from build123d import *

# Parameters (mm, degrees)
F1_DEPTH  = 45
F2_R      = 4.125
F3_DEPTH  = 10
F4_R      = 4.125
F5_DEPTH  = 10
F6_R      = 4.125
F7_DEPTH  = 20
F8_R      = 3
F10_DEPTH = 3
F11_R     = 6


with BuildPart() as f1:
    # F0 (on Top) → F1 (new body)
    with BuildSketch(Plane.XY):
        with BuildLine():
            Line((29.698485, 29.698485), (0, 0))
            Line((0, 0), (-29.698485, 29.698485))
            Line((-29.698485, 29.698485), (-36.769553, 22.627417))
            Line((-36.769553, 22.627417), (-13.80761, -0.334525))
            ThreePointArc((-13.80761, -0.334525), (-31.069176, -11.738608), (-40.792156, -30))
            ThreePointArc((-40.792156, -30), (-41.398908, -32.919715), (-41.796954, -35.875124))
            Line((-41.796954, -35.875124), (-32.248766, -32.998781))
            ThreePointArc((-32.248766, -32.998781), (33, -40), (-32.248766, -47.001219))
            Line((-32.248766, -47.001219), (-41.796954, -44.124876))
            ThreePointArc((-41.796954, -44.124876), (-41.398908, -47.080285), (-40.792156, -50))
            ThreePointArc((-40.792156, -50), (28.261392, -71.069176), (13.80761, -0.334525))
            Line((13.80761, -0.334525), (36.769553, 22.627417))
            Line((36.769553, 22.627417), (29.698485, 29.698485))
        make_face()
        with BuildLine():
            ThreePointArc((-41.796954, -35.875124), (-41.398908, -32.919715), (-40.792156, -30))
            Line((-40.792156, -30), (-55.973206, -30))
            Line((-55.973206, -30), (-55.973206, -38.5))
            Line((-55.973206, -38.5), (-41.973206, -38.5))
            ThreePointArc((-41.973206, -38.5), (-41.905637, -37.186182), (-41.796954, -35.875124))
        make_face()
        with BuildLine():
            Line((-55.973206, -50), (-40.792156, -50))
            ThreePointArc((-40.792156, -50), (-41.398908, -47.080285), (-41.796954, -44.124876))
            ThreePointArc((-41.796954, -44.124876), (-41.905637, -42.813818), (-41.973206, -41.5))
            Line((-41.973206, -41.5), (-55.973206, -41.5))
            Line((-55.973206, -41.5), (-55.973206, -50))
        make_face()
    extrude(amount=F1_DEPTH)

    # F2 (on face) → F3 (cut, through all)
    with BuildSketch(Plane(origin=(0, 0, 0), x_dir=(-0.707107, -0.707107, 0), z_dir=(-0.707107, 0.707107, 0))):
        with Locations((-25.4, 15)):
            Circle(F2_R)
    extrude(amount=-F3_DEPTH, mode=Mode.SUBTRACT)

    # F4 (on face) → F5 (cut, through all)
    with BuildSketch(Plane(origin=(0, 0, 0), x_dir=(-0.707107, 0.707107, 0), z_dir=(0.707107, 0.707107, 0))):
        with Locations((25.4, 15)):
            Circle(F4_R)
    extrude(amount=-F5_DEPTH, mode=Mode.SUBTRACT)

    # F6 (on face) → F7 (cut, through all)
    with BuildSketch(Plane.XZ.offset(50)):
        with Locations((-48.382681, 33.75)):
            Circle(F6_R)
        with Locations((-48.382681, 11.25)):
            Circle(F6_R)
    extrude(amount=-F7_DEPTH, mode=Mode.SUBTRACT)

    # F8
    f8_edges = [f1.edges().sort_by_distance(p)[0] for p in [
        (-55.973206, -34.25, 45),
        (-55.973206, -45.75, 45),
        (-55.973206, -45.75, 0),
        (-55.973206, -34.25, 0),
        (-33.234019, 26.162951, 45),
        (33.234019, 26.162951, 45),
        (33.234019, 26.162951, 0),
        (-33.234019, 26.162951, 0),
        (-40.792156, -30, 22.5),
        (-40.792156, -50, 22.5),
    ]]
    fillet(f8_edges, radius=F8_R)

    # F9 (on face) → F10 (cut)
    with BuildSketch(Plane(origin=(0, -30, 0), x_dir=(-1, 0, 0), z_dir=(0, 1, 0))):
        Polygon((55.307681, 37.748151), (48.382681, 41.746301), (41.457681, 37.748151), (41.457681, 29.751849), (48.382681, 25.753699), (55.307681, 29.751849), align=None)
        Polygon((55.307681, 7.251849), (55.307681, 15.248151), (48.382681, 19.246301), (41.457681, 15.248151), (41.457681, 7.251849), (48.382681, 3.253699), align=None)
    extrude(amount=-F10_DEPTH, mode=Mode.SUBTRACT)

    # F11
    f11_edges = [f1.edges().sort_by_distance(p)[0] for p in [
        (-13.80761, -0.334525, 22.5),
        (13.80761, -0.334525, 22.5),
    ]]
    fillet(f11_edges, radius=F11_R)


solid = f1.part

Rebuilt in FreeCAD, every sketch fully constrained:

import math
import FreeCAD as App
import Part
import Sketcher
Q = App.Units.Quantity


def edges_at(feature, points):
    """Names of the edges that pass closest to the given points."""
    edges = feature.Shape.Edges
    near = lambda p: min(range(len(edges)), key=lambda i: edges[i].distToShape(Part.Vertex(*p))[0])
    return sorted({f"Edge{near(p) + 1}" for p in points})


def add_polygon(sketch, points):
    """Adds a closed chain of lines whose ends are joined by coincident constraints."""
    first, n = sketch.GeometryCount, len(points)
    for a, b in zip(points, points[1:] + points[:1]):
        sketch.addGeometry(Part.LineSegment(App.Vector(*a, 0), App.Vector(*b, 0)), False)
    for i in range(n):
        sketch.addConstraint(Sketcher.Constraint("Coincident", first + i, 2, first + (i + 1) % n, 1))

doc = App.newDocument("Part")
params = doc.addObject("Spreadsheet::Sheet", "Params")
for row, (alias, value) in enumerate([
    ("sketch1_radius", "42.000002 mm"),
    ("sketch1_radius2", "33 mm"),
    ("sketch1_width", "14 mm"),
    ("sketch1_length", "42 mm"),
    ("sketch1_length2", "10 mm"),
    ("pad1_length", "45 mm"),
    ("sketch2_diameter", "8.25 mm"),
    ("sketch3_diameter", "8.25 mm"),
    ("sketch4_diameter", "8.25 mm"),
    ("fillet_radius", "3 mm"),
    ("pocket4_length", "3 mm"),
    ("fillet2_radius", "6 mm"),
], start=1):
    params.set(f"A{row}", alias)
    params.set(f"B{row}", "=" + value)
    params.setAlias(f"B{row}", alias)

body = doc.addObject("PartDesign::Body", "Body")

# Sketch on XY plane
sketch1 = doc.addObject("Sketcher::SketchObject", "Sketch")
body.addObject(sketch1)
sketch1.AttachmentSupport = (doc.XY_Plane, [""])
sketch1.MapMode = "FlatFace"
sketch1.addGeometry([
    Part.LineSegment(App.Vector(29.7, 29.7, 0), App.Vector(0, 0, 0)),  # 0
    Part.LineSegment(App.Vector(0, 0, 0), App.Vector(-29.7, 29.7, 0)),  # 1
    Part.LineSegment(App.Vector(-29.7, 29.7, 0), App.Vector(-36.8, 22.6, 0)),  # 2
    Part.LineSegment(App.Vector(-36.8, 22.6, 0), App.Vector(-13.8, -0.3, 0)),  # 3
    Part.ArcOfCircle(Part.Circle(App.Vector(0, -40, 0), App.Vector(0, 0, 1), 42), math.radians(109), math.radians(166)),  # 4
    Part.LineSegment(App.Vector(-40.8, -30, 0), App.Vector(-56, -30, 0)),  # 5
    Part.LineSegment(App.Vector(-56, -30, 0), App.Vector(-56, -38.5, 0)),  # 6
    Part.LineSegment(App.Vector(-56, -38.5, 0), App.Vector(-42, -38.5, 0)),  # 7
    Part.ArcOfCircle(Part.Circle(App.Vector(0, -40, 0), App.Vector(0, 0, 1), 42), math.radians(174.36), math.radians(177.95)),  # 8
    Part.LineSegment(App.Vector(-41.8, -35.9, 0), App.Vector(-32.2, -33, 0)),  # 9
    Part.ArcOfCircle(Part.Circle(App.Vector(0, -40, 0), App.Vector(0, 0, 1), 33), math.radians(-168), math.radians(168)),  # 10
    Part.LineSegment(App.Vector(-32.2, -47, 0), App.Vector(-41.8, -44.1, 0)),  # 11
    Part.ArcOfCircle(Part.Circle(App.Vector(0, -40, 0), App.Vector(0, 0, 1), 42), math.radians(-177.95), math.radians(-174.36)),  # 12
    Part.LineSegment(App.Vector(-42, -41.5, 0), App.Vector(-56, -41.5, 0)),  # 13
    Part.LineSegment(App.Vector(-56, -41.5, 0), App.Vector(-56, -50, 0)),  # 14
    Part.LineSegment(App.Vector(-56, -50, 0), App.Vector(-40.8, -50, 0)),  # 15
    Part.ArcOfCircle(Part.Circle(App.Vector(0, -40, 0), App.Vector(0, 0, 1), 42), math.radians(-166), math.radians(71)),  # 16
    Part.LineSegment(App.Vector(13.8, -0.3, 0), App.Vector(36.8, 22.6, 0)),  # 17
    Part.LineSegment(App.Vector(36.8, 22.6, 0), App.Vector(29.7, 29.7, 0)),  # 18
], False)
sketch1.addConstraint([
    Sketcher.Constraint("Coincident", 0, 2, 1, 1),
    Sketcher.Constraint("Coincident", 1, 2, 2, 1),
    Sketcher.Constraint("Coincident", 2, 2, 3, 1),
    Sketcher.Constraint("Coincident", 3, 2, 4, 1),
    Sketcher.Constraint("Coincident", 4, 2, 5, 1),
    Sketcher.Constraint("Coincident", 5, 2, 6, 1),
    Sketcher.Constraint("Coincident", 6, 2, 7, 1),
    Sketcher.Constraint("Coincident", 7, 2, 8, 2),
    Sketcher.Constraint("Coincident", 8, 1, 9, 1),
    Sketcher.Constraint("Coincident", 9, 2, 10, 2),
    Sketcher.Constraint("Coincident", 10, 1, 11, 1),
    Sketcher.Constraint("Coincident", 11, 2, 12, 2),
    Sketcher.Constraint("Coincident", 12, 1, 13, 1),
    Sketcher.Constraint("Coincident", 13, 2, 14, 1),
    Sketcher.Constraint("Coincident", 14, 2, 15, 1),
    Sketcher.Constraint("Coincident", 15, 2, 16, 1),
    Sketcher.Constraint("Coincident", 16, 2, 17, 1),
    Sketcher.Constraint("Coincident", 17, 2, 18, 1),
    Sketcher.Constraint("Coincident", 18, 2, 0, 1),
    Sketcher.Constraint("Horizontal", 5),
    Sketcher.Constraint("Vertical", 6),
    Sketcher.Constraint("Horizontal", 7),
    Sketcher.Constraint("Horizontal", 13),
    Sketcher.Constraint("Vertical", 14),
    Sketcher.Constraint("Horizontal", 15),
    Sketcher.Constraint("Coincident", 0, 2, -1, 1),
    Sketcher.Constraint("Coincident", 10, 3, 4, 3),
    Sketcher.Constraint("Coincident", 16, 3, 4, 3),
    Sketcher.Constraint("Equal", 8, 12),
    Sketcher.Constraint("Equal", 4, 16),
    Sketcher.Constraint("Symmetric", 3, 2, 16, 2, -2),
    Sketcher.Constraint("Symmetric", 2, 2, 17, 2, -2),
    Sketcher.Constraint("Symmetric", 1, 2, 18, 2, -2),
    Sketcher.Constraint("Perpendicular", 0, 1),
    Sketcher.Constraint("Perpendicular", 1, 2),
    Sketcher.Constraint("Perpendicular", 2, 3),
    Sketcher.Constraint("Vertical", 8, 3, 12, 3),
    Sketcher.Constraint("Vertical", 9, 2, 10, 1),
    Sketcher.Constraint("Vertical", 8, 1, 11, 2),
    Sketcher.Constraint("Vertical", 7, 2, 12, 1),
    Sketcher.Constraint("Vertical", 6, 2, 13, 2),
    Sketcher.Constraint("Vertical", 4, 2, 15, 2),
    Sketcher.Constraint("Equal", 6, 14),
    Sketcher.Constraint("Radius", 4, Q("42.000002 mm")),
    Sketcher.Constraint("Radius", 10, Q("33 mm")),
    Sketcher.Constraint("DistanceX", 7, 1, 7, 2, Q("14 mm")),
    Sketcher.Constraint("Distance", 0, Q("42 mm")),
    Sketcher.Constraint("Distance", 2, Q("10 mm")),
    Sketcher.Constraint("DistanceY", 6, 2, 6, 1, Q("8.5 mm")),
    Sketcher.Constraint("DistanceY", 4, 3, -1, 1, Q("40.000001 mm")),
    Sketcher.Constraint("DistanceY", 4, 2, -1, 1, Q("30 mm")),
    Sketcher.Constraint("Radius", 8, Q("42.000235 mm")),
    Sketcher.Constraint("DistanceX", 5, 2, 5, 1, Q("15.18105 mm")),
    Sketcher.Constraint("DistanceX", 11, 2, 15, 2, Q("1.004798 mm")),
    Sketcher.Constraint("DistanceY", 8, 3, 16, 2, Q("39.665501 mm")),
    Sketcher.Constraint("DistanceY", 9, 2, -1, 1, Q("32.998781 mm")),
])
sketch1.setExpression("Constraints[43]", "Params.sketch1_radius")
sketch1.setExpression("Constraints[44]", "Params.sketch1_radius2")
sketch1.setExpression("Constraints[45]", "Params.sketch1_width")
sketch1.setExpression("Constraints[46]", "Params.sketch1_length")
sketch1.setExpression("Constraints[47]", "Params.sketch1_length2")
pad1 = doc.addObject("PartDesign::Pad", "Pad")
body.addObject(pad1)
pad1.Profile = sketch1
pad1.setExpression("Length", "Params.pad1_length")

# Sketch on an angled plane
sketch2 = doc.addObject("Sketcher::SketchObject", "Sketch001")
body.addObject(sketch2)
sketch2.Placement = App.Placement(App.Vector(0, 0, 0), App.Rotation(App.Vector(-0.707106781, -0.707106781, 0), App.Vector(0, 0, 0.999999999), App.Vector(-0.707106781, 0.707106781, 0), "ZXY"))
sketch2.addGeometry(Part.Circle(App.Vector(-25.4, 15, 0), App.Vector(0, 0, 1), 4.1), False)
sketch2.addConstraint([
    Sketcher.Constraint("Diameter", 0, Q("8.25 mm")),
    Sketcher.Constraint("DistanceY", -1, 1, 0, 3, Q("15 mm")),
    Sketcher.Constraint("DistanceX", 0, 3, -1, 1, Q("25.4 mm")),
])
sketch2.setExpression("Constraints[0]", "Params.sketch2_diameter")
pocket1 = doc.addObject("PartDesign::Pocket", "Pocket")
body.addObject(pocket1)
pocket1.Profile = sketch2
pocket1.Type = "ThroughAll"

# Sketch on an angled plane
sketch3 = doc.addObject("Sketcher::SketchObject", "Sketch002")
body.addObject(sketch3)
sketch3.Placement = App.Placement(App.Vector(0, 0, 0), App.Rotation(App.Vector(-0.707106781, 0.707106781, 0), App.Vector(0, 0, 0.999999999), App.Vector(0.707106781, 0.707106781, 0), "ZXY"))
sketch3.addGeometry(Part.Circle(App.Vector(25.4, 15, 0), App.Vector(0, 0, 1), 4.1), False)
sketch3.addConstraint([
    Sketcher.Constraint("Diameter", 0, Q("8.25 mm")),
    Sketcher.Constraint("DistanceY", -1, 1, 0, 3, Q("15 mm")),
    Sketcher.Constraint("DistanceX", -1, 1, 0, 3, Q("25.4 mm")),
])
sketch3.setExpression("Constraints[0]", "Params.sketch3_diameter")
pocket2 = doc.addObject("PartDesign::Pocket", "Pocket001")
body.addObject(pocket2)
pocket2.Profile = sketch3
pocket2.Type = "ThroughAll"

# Sketch on XZ plane
sketch4 = doc.addObject("Sketcher::SketchObject", "Sketch003")
body.addObject(sketch4)
sketch4.AttachmentSupport = (doc.XZ_Plane, [""])
sketch4.MapMode = "FlatFace"
sketch4.AttachmentOffset = App.Placement(App.Vector(0, 0, 50), App.Rotation())
sketch4.addGeometry([
    Part.Circle(App.Vector(-48.4, 33.8, 0), App.Vector(0, 0, 1), 4.1),
    Part.Circle(App.Vector(-48.4, 11.2, 0), App.Vector(0, 0, 1), 4.1),
], False)
sketch4.addConstraint([
    Sketcher.Constraint("Equal", 0, 1),
    Sketcher.Constraint("Vertical", 0, 3, 1, 3),
    Sketcher.Constraint("Diameter", 0, Q("8.25 mm")),
    Sketcher.Constraint("DistanceY", 1, 3, 0, 3, Q("22.5 mm")),
    Sketcher.Constraint("DistanceY", -1, 1, 0, 3, Q("33.75 mm")),
    Sketcher.Constraint("DistanceX", 0, 3, -1, 1, Q("48.382681 mm")),
])
sketch4.setExpression("Constraints[2]", "Params.sketch4_diameter")
pocket3 = doc.addObject("PartDesign::Pocket", "Pocket002")
body.addObject(pocket3)
pocket3.Profile = sketch4
pocket3.Type = "ThroughAll"
doc.recompute()

fillet = doc.addObject("PartDesign::Fillet", "Fillet")
body.addObject(fillet)
fillet.Base = (pocket3, edges_at(pocket3, [
    (-55.973, -34.25, 45),
    (-55.973, -45.75, 45),
    (-55.973, -45.75, 0),
    (-55.973, -34.25, 0),
    (-33.234, 26.163, 45),
    (33.234, 26.163, 45),
    (33.234, 26.163, 0),
    (-33.234, 26.163, 0),
    (-40.792, -30, 22.5),
    (-40.792, -50, 22.5),
]))
fillet.setExpression("Radius", "Params.fillet_radius")

# Sketch on XZ plane
sketch5 = doc.addObject("Sketcher::SketchObject", "Sketch004")
body.addObject(sketch5)
sketch5.AttachmentSupport = (doc.XZ_Plane, [""])
sketch5.MapMode = "FlatFace"
sketch5.AttachmentOffset = App.Placement(App.Vector(0, 0, 30), App.Rotation())
add_polygon(sketch5, [(-55, 38), (-48, 42), (-41, 38), (-41, 30), (-48, 26), (-55, 30)])  # lines 0-5
add_polygon(sketch5, [(-55, 7), (-55, 15), (-48, 19), (-41, 15), (-41, 7), (-48, 3)])  # lines 6-11
sketch5.addConstraint([
    Sketcher.Constraint("Vertical", 2),
    Sketcher.Constraint("Vertical", 5),
    Sketcher.Constraint("Vertical", 6),
    Sketcher.Constraint("Vertical", 9),
    Sketcher.Constraint("Parallel", 0, 3),
    Sketcher.Constraint("Parallel", 1, 4),
    Sketcher.Constraint("Parallel", 3, 7),
    Sketcher.Constraint("Parallel", 4, 8),
    Sketcher.Constraint("Parallel", 7, 10),
    Sketcher.Constraint("Parallel", 8, 11),
    Sketcher.Constraint("Horizontal", 2, 2, 4, 2),
    Sketcher.Constraint("Horizontal", 1, 2, 5, 2),
    Sketcher.Constraint("Horizontal", 6, 2, 8, 2),
    Sketcher.Constraint("Horizontal", 9, 2, 11, 2),
    Sketcher.Constraint("Vertical", 0, 2, 3, 2),
    Sketcher.Constraint("Vertical", 5, 2, 6, 2),
    Sketcher.Constraint("Vertical", 3, 2, 7, 2),
    Sketcher.Constraint("Equal", 5, 6),
    Sketcher.Constraint("Angle", 0, Q("29.999996 deg")),
    Sketcher.Constraint("DistanceY", 6, 2, 5, 2, Q("22.5 mm")),
    Sketcher.Constraint("DistanceX", 4, 2, 2, 2, Q("13.85 mm")),
    Sketcher.Constraint("DistanceY", -1, 1, 0, 2, Q("41.746301 mm")),
    Sketcher.Constraint("DistanceY", -1, 1, 3, 2, Q("25.753699 mm")),
    Sketcher.Constraint("DistanceX", 0, 2, -1, 1, Q("48.382681 mm")),
])
pocket4 = doc.addObject("PartDesign::Pocket", "Pocket003")
body.addObject(pocket4)
pocket4.Profile = sketch5
pocket4.setExpression("Length", "Params.pocket4_length")
pocket4.Reversed = True
doc.recompute()

fillet2 = doc.addObject("PartDesign::Fillet", "Fillet001")
body.addObject(fillet2)
fillet2.Base = (pocket4, edges_at(pocket4, [(-13.808, -0.335, 22.5), (13.808, -0.335, 22.5)]))
fillet2.setExpression("Radius", "Params.fillet2_radius")

doc.recompute()
